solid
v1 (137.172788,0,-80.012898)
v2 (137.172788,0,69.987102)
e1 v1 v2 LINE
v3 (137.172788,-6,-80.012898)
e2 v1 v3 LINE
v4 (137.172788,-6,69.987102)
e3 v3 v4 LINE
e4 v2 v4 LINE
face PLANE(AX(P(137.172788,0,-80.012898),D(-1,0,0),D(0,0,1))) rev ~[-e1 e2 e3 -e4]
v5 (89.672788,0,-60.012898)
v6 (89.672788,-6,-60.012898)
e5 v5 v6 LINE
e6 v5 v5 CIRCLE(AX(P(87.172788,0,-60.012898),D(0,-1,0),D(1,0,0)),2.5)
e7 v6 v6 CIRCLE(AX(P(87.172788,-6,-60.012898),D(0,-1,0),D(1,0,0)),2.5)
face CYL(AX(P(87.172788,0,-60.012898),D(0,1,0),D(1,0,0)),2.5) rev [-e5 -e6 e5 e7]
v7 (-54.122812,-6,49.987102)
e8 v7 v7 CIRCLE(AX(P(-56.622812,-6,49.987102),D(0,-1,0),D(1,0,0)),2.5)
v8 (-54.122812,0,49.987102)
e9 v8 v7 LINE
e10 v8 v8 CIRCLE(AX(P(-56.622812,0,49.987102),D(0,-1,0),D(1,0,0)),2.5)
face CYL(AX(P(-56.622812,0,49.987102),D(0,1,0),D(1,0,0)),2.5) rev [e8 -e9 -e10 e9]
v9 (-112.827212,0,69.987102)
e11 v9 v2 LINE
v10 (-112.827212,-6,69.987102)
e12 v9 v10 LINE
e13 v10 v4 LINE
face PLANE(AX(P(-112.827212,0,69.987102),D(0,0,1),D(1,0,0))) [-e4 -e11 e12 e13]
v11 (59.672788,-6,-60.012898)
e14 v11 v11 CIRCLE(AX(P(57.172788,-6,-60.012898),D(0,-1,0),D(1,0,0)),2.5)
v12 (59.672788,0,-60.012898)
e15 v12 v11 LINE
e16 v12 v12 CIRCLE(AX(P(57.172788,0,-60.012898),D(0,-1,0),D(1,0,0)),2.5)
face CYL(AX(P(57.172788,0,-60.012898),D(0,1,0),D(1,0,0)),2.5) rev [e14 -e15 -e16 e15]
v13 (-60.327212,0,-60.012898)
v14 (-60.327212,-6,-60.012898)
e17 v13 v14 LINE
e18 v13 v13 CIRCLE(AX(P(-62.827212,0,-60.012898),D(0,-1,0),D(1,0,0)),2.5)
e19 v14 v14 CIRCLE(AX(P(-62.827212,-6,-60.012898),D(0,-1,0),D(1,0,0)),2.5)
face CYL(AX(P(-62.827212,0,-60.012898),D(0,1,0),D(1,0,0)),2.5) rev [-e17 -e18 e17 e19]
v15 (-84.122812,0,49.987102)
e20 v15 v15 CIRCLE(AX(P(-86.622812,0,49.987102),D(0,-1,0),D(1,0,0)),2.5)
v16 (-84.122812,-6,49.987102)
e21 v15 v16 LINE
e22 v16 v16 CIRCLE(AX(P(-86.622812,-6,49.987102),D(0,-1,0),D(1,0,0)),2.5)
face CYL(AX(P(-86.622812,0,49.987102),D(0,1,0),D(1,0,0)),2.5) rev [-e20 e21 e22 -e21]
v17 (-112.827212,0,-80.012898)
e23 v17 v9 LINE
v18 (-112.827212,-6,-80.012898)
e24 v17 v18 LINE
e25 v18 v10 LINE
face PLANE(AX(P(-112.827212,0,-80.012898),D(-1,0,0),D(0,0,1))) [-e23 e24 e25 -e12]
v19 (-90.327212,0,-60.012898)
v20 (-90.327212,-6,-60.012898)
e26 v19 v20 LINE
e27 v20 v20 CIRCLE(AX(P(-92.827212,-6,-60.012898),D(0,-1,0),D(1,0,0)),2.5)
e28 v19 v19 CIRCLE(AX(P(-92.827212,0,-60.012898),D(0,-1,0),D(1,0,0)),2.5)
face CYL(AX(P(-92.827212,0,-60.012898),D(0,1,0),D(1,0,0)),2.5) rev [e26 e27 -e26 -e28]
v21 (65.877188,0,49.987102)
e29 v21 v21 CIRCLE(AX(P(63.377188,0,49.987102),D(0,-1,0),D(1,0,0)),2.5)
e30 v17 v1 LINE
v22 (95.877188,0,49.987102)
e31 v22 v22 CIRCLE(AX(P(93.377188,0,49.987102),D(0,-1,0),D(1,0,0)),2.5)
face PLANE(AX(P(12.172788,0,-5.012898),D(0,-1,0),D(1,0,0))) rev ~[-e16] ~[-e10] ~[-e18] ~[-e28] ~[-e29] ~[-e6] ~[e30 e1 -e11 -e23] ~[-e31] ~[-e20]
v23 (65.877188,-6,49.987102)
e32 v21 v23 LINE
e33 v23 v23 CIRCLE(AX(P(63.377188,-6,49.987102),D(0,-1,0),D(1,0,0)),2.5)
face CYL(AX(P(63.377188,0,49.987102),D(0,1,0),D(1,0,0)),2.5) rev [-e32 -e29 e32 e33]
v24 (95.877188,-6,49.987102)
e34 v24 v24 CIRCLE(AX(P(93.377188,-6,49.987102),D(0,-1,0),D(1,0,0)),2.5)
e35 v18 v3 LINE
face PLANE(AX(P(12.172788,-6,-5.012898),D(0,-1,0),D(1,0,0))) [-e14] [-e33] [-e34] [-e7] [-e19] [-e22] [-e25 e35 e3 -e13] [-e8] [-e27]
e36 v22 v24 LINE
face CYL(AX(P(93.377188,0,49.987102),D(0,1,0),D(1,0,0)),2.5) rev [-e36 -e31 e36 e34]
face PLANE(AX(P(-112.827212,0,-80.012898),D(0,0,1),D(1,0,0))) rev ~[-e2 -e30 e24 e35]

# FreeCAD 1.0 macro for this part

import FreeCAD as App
import Part
import Sketcher

V = App.Vector


def add_polygon(sketch, points):
    """Adds a closed chain of lines whose ends are joined by coincident constraints."""
    first, n = sketch.GeometryCount, len(points)
    for a, b in zip(points, points[1:] + points[:1]):
        sketch.addGeometry(Part.LineSegment(App.Vector(*a, 0), App.Vector(*b, 0)), False)
    for i in range(n):
        sketch.addConstraint(Sketcher.Constraint("Coincident", first + i, 2, first + (i + 1) % n, 1))

doc = App.newDocument("Part")
body = doc.addObject("PartDesign::Body", "Body")

# Sketch on XZ plane
sketch1 = doc.addObject("Sketcher::SketchObject", "Sketch")
body.addObject(sketch1)
sketch1.AttachmentSupport = (doc.XZ_Plane, [""])
sketch1.MapMode = "FlatFace"
add_polygon(sketch1, [(-112.8, 70), (-112.8, -80), (137.2, -80), (137.2, 70)])  # lines 0-3
sketch1.addGeometry(Part.Circle(V(-92.8, -60, 0), V(0, 0, 1), 2.5), False)  # 4
sketch1.addGeometry(Part.Circle(V(-62.8, -60, 0), V(0, 0, 1), 2.5), False)  # 5
sketch1.addGeometry(Part.Circle(V(57.2, -60, 0), V(0, 0, 1), 2.5), False)  # 6
sketch1.addGeometry(Part.Circle(V(87.2, -60, 0), V(0, 0, 1), 2.5), False)  # 7
sketch1.addGeometry(Part.Circle(V(-86.6, 50, 0), V(0, 0, 1), 2.5), False)  # 8
sketch1.addGeometry(Part.Circle(V(-56.6, 50, 0), V(0, 0, 1), 2.5), False)  # 9
sketch1.addGeometry(Part.Circle(V(63.4, 50, 0), V(0, 0, 1), 2.5), False)  # 10
sketch1.addGeometry(Part.Circle(V(93.4, 50, 0), V(0, 0, 1), 2.5), False)  # 11
sketch1.addConstraint([
    Sketcher.Constraint("Vertical", 0),
    Sketcher.Constraint("Horizontal", 1),
    Sketcher.Constraint("Vertical", 2),
    Sketcher.Constraint("Horizontal", 3),
    Sketcher.Constraint("Equal", 4, 5),
    Sketcher.Constraint("Equal", 5, 6),
    Sketcher.Constraint("Equal", 6, 7),
    Sketcher.Constraint("Equal", 7, 8),
    Sketcher.Constraint("Equal", 8, 9),
    Sketcher.Constraint("Equal", 9, 10),
    Sketcher.Constraint("Equal", 10, 11),
    Sketcher.Constraint("Horizontal", 4, 3, 5, 3),
    Sketcher.Constraint("Horizontal", 5, 3, 6, 3),
    Sketcher.Constraint("Horizontal", 6, 3, 7, 3),
    Sketcher.Constraint("Horizontal", 8, 3, 9, 3),
    Sketcher.Constraint("Horizontal", 9, 3, 10, 3),
    Sketcher.Constraint("Horizontal", 10, 3, 11, 3),
    Sketcher.Constraint("Diameter", 4, 5.0),
    Sketcher.Constraint("DistanceX", 1, 1, 1, 2, 250.0),
    Sketcher.Constraint("DistanceY", 0, 2, 0, 1, 150.0),
    Sketcher.Constraint("DistanceX", 4, 3, 5, 3, 30.0),
    Sketcher.Constraint("DistanceX", 5, 3, 6, 3, 120.0),
    Sketcher.Constraint("DistanceX", 6, 3, 7, 3, 30.0),
    Sketcher.Constraint("DistanceY", 4, 3, 8, 3, 110.0),
    Sketcher.Constraint("DistanceX", 8, 3, 9, 3, 30.0),
    Sketcher.Constraint("DistanceX", 9, 3, 10, 3, 120.0),
    Sketcher.Constraint("DistanceX", 10, 3, 11, 3, 30.0),
    Sketcher.Constraint("DistanceX", 0, 2, 4, 3, 20.0),
    Sketcher.Constraint("DistanceY", 0, 2, 4, 3, 20.0),
    Sketcher.Constraint("DistanceY", 0, 2, -1, 1, 80.012898),
    Sketcher.Constraint("DistanceX", 4, 3, 8, 3, 6.2044),
    Sketcher.Constraint("DistanceX", 8, 3, -1, 1, 86.622812),
])
pad1 = doc.addObject("PartDesign::Pad", "Pad")
body.addObject(pad1)
pad1.Profile = sketch1
pad1.Length = 6

doc.recompute()
